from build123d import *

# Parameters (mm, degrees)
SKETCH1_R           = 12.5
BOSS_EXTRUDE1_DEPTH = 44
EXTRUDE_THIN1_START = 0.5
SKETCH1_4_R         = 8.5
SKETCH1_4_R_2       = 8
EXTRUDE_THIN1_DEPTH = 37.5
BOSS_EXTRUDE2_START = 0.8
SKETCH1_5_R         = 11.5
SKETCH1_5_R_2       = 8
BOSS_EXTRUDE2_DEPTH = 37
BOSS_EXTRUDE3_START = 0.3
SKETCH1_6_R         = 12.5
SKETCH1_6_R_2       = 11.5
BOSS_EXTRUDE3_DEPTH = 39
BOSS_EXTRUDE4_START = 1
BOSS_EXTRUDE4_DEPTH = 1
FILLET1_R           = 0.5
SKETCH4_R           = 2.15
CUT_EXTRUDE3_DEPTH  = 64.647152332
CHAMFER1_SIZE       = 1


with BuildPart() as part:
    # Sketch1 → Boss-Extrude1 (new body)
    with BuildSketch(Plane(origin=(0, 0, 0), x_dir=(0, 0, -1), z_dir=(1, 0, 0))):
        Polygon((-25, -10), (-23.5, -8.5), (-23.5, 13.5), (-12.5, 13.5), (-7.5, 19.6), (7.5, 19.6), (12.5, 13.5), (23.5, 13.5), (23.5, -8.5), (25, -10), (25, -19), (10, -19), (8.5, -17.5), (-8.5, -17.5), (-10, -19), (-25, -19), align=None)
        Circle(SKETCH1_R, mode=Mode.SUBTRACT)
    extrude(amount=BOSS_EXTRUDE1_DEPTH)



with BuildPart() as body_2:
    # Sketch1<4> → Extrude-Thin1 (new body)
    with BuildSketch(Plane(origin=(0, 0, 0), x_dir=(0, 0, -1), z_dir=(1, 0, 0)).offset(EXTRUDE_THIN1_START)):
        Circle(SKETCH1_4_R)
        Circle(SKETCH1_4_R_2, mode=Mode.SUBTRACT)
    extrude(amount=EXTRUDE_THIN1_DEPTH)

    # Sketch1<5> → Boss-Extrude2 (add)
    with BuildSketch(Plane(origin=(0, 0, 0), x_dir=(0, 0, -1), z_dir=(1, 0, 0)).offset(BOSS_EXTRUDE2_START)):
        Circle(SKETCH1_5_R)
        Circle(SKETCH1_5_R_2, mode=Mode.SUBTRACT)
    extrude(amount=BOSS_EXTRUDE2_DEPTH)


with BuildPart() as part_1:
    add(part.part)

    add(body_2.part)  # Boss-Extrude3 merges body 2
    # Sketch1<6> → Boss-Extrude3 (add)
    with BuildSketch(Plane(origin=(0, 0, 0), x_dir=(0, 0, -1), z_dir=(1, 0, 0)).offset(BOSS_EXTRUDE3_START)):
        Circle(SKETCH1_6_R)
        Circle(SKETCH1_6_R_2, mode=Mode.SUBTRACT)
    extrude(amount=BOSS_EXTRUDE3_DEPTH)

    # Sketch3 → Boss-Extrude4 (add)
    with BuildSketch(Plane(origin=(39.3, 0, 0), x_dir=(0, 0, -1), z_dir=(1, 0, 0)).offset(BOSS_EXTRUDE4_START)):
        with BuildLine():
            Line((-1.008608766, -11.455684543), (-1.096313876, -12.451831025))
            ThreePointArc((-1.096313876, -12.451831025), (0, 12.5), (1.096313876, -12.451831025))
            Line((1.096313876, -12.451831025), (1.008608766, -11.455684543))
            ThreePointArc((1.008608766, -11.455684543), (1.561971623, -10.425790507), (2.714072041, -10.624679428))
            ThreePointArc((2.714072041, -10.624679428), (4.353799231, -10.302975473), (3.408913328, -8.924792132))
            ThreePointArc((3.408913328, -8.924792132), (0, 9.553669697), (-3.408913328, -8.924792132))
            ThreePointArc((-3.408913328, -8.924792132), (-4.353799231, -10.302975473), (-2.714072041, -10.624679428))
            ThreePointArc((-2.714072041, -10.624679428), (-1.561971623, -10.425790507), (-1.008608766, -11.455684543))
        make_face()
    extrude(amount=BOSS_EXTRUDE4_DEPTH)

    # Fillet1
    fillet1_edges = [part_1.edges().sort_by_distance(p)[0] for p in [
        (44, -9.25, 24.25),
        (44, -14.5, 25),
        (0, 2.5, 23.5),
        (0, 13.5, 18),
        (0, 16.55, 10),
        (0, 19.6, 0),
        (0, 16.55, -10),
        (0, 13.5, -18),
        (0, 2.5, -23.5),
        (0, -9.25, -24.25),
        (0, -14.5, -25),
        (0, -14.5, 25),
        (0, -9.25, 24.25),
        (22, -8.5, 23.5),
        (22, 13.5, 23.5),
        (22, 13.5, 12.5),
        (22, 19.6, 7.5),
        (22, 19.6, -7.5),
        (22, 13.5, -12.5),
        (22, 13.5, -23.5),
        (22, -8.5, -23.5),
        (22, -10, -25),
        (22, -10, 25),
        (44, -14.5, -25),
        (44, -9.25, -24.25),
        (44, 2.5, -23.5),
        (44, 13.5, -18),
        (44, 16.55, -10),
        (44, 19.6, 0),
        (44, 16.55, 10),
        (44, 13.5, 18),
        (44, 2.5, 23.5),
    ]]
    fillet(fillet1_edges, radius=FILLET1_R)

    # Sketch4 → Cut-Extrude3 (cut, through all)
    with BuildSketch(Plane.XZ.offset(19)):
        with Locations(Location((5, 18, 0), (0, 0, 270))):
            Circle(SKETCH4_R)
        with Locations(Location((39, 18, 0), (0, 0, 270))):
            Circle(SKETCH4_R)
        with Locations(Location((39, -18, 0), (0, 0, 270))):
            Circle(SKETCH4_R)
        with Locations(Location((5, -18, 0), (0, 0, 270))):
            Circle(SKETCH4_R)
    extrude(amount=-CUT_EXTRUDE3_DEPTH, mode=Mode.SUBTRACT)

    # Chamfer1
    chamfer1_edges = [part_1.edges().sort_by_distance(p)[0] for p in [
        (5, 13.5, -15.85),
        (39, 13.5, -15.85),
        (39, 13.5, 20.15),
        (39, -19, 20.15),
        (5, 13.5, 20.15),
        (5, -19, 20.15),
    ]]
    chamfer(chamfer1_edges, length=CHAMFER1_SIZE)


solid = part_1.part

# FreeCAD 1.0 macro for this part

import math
import FreeCAD as App
import Part
import Sketcher
from FreeCAD import Vector


def edges_at(feature, points):
    """Names of the edges that pass closest to the given points."""
    edges = feature.Shape.Edges
    near = lambda p: min(range(len(edges)), key=lambda i: edges[i].distToShape(Part.Vertex(*p))[0])
    return sorted({f"Edge{near(p) + 1}" for p in points})

doc = App.newDocument("Part")
body = doc.addObject("PartDesign::Body", "Body")

# Sketch on YZ plane
sketch1 = body.newObject("Sketcher::SketchObject", "Sketch")
sketch1.AttachmentSupport = (doc.getObject("YZ_Plane"), [""])
sketch1.MapMode = "FlatFace"
sketch1.addGeometry([
    Part.LineSegment(Vector(-8.5, 23.5, 0), Vector(-10, 25, 0)),  # 0
    Part.LineSegment(Vector(-10, 25, 0), Vector(-19, 25, 0)),  # 1
    Part.LineSegment(Vector(-19, 25, 0), Vector(-19, 10, 0)),  # 2
    Part.LineSegment(Vector(-19, 10, 0), Vector(-17.5, 8.5, 0)),  # 3
    Part.LineSegment(Vector(-17.5, 8.5, 0), Vector(-17.5, -8.5, 0)),  # 4
    Part.LineSegment(Vector(-17.5, -8.5, 0), Vector(-19, -10, 0)),  # 5
    Part.LineSegment(Vector(-19, -10, 0), Vector(-19, -25, 0)),  # 6
    Part.LineSegment(Vector(-19, -25, 0), Vector(-10, -25, 0)),  # 7
    Part.LineSegment(Vector(-10, -25, 0), Vector(-8.5, -23.5, 0)),  # 8
    Part.LineSegment(Vector(-8.5, -23.5, 0), Vector(13.5, -23.5, 0)),  # 9
    Part.LineSegment(Vector(13.5, -23.5, 0), Vector(13.5, -12.5, 0)),  # 10
    Part.LineSegment(Vector(13.5, -12.5, 0), Vector(19.6, -7.5, 0)),  # 11
    Part.LineSegment(Vector(19.6, -7.5, 0), Vector(19.6, 7.5, 0)),  # 12
    Part.LineSegment(Vector(19.6, 7.5, 0), Vector(13.5, 12.5, 0)),  # 13
    Part.LineSegment(Vector(13.5, 12.5, 0), Vector(13.5, 23.5, 0)),  # 14
    Part.LineSegment(Vector(13.5, 23.5, 0), Vector(-8.5, 23.5, 0)),  # 15
    Part.Circle(Vector(0, 0, 0), Vector(0, 0, 1), 12.5),  # 16
], False)
sketch1.addConstraint([
    Sketcher.Constraint("Coincident", 0, 2, 1, 1),
    Sketcher.Constraint("Coincident", 1, 2, 2, 1),
    Sketcher.Constraint("Coincident", 2, 2, 3, 1),
    Sketcher.Constraint("Coincident", 3, 2, 4, 1),
    Sketcher.Constraint("Coincident", 4, 2, 5, 1),
    Sketcher.Constraint("Coincident", 5, 2, 6, 1),
    Sketcher.Constraint("Coincident", 6, 2, 7, 1),
    Sketcher.Constraint("Coincident", 7, 2, 8, 1),
    Sketcher.Constraint("Coincident", 8, 2, 9, 1),
    Sketcher.Constraint("Coincident", 9, 2, 10, 1),
    Sketcher.Constraint("Coincident", 10, 2, 11, 1),
    Sketcher.Constraint("Coincident", 11, 2, 12, 1),
    Sketcher.Constraint("Coincident", 12, 2, 13, 1),
    Sketcher.Constraint("Coincident", 13, 2, 14, 1),
    Sketcher.Constraint("Coincident", 14, 2, 15, 1),
    Sketcher.Constraint("Coincident", 15, 2, 0, 1),
    Sketcher.Constraint("Horizontal", 1),
    Sketcher.Constraint("Vertical", 2),
    Sketcher.Constraint("Vertical", 4),
    Sketcher.Constraint("Vertical", 6),
    Sketcher.Constraint("Horizontal", 7),
    Sketcher.Constraint("Horizontal", 9),
    Sketcher.Constraint("Vertical", 10),
    Sketcher.Constraint("Vertical", 12),
    Sketcher.Constraint("Vertical", 14),
    Sketcher.Constraint("Horizontal", 15),
    Sketcher.Constraint("Coincident", 16, 3, -1, 1),
    Sketcher.Constraint("Symmetric", 2, 2, 5, 2, -1),
    Sketcher.Constraint("Symmetric", 0, 2, 7, 2, -1),
    Sketcher.Constraint("Symmetric", 10, 2, 13, 2, -1),
    Sketcher.Constraint("Symmetric", 8, 2, 15, 2, -1),
    Sketcher.Constraint("Parallel", 0, 3),
    Sketcher.Constraint("Perpendicular", 3, 5),
    Sketcher.Constraint("Parallel", 5, 8),
    Sketcher.Constraint("Equal", 6, 12),
    Sketcher.Constraint("Equal", 0, 3),
    Sketcher.Constraint("Equal", 11, 13),
    Sketcher.Constraint("Diameter", 16, 25.0),
    Sketcher.Constraint("DistanceX", 1, 2, 1, 1, 9.0),
    Sketcher.Constraint("DistanceX", 9, 1, 9, 2, 22.0),
    Sketcher.Constraint("DistanceY", 2, 2, 2, 1, 15.0),
    Sketcher.Constraint("DistanceY", 4, 2, 4, 1, 17.0),
    Sketcher.Constraint("DistanceY", 10, 1, 10, 2, 11.0),
    Sketcher.Constraint("DistanceX", 0, 2, -1, 1, 10.0),
    Sketcher.Constraint("DistanceY", -1, 1, 0, 2, 25.0),
    Sketcher.Constraint("DistanceX", -1, 1, 11, 2, 19.6),
])
pad1 = body.newObject("PartDesign::Pad", "Pad")
pad1.Profile = sketch1
pad1.Length = 44
body2 = doc.addObject("PartDesign::Body", "Body001")

# Sketch on YZ plane
sketch2 = body2.newObject("Sketcher::SketchObject", "Sketch001")
sketch2.AttachmentSupport = (doc.getObject("YZ_Plane001"), [""])
sketch2.MapMode = "FlatFace"
sketch2.AttachmentOffset = App.Placement(Vector(0, 0, 0.5), App.Rotation())
sketch2.addGeometry([
    Part.Circle(Vector(0, 0, 0), Vector(0, 0, 1), 8),
    Part.Circle(Vector(0, 0, 0), Vector(0, 0, 1), 8),
], False)
sketch2.addConstraint([
    Sketcher.Constraint("Coincident", 0, 3, -1, 1),
    Sketcher.Constraint("Coincident", 1, 3, -1, 1),
    Sketcher.Constraint("Diameter", 0, 17.0),
    Sketcher.Constraint("Diameter", 1, 16.0),
])
pad2 = body2.newObject("PartDesign::Pad", "Pad001")
pad2.Profile = sketch2
pad2.Length = 37.5

# Sketch on YZ plane
sketch3 = body2.newObject("Sketcher::SketchObject", "Sketch002")
sketch3.AttachmentSupport = (doc.getObject("YZ_Plane001"), [""])
sketch3.MapMode = "FlatFace"
sketch3.AttachmentOffset = App.Placement(Vector(0, 0, 0.8), App.Rotation())
sketch3.addGeometry([
    Part.Circle(Vector(0, 0, 0), Vector(0, 0, 1), 12),
    Part.Circle(Vector(0, 0, 0), Vector(0, 0, 1), 8),
], False)
sketch3.addConstraint([
    Sketcher.Constraint("Coincident", 0, 3, -1, 1),
    Sketcher.Constraint("Coincident", 1, 3, -1, 1),
    Sketcher.Constraint("Diameter", 0, 23.0),
    Sketcher.Constraint("Diameter", 1, 16.0),
])
pad3 = body2.newObject("PartDesign::Pad", "Pad002")
pad3.Profile = sketch3
pad3.Length = 37
body.AllowCompound = True
doc.recompute()

boolean = body.newObject("PartDesign::Boolean", "Boolean")
boolean.Type = "Fuse"
boolean.addObjects([body2])

# Sketch on YZ plane
sketch4 = body.newObject("Sketcher::SketchObject", "Sketch003")
sketch4.AttachmentSupport = (doc.getObject("YZ_Plane"), [""])
sketch4.MapMode = "FlatFace"
sketch4.AttachmentOffset = App.Placement(Vector(0, 0, 0.3), App.Rotation())
sketch4.addGeometry([
    Part.Circle(Vector(0, 0, 0), Vector(0, 0, 1), 12),
    Part.Circle(Vector(0, 0, 0), Vector(0, 0, 1), 12),
], False)
sketch4.addConstraint([
    Sketcher.Constraint("Coincident", 0, 3, -1, 1),
    Sketcher.Constraint("Coincident", 1, 3, -1, 1),
    Sketcher.Constraint("Diameter", 0, 25.0),
    Sketcher.Constraint("Diameter", 1, 23.0),
])
pad4 = body.newObject("PartDesign::Pad", "Pad003")
pad4.Profile = sketch4
pad4.Length = 39

# Sketch on YZ plane
sketch5 = body.newObject("Sketcher::SketchObject", "Sketch004")
sketch5.AttachmentSupport = (doc.getObject("YZ_Plane"), [""])
sketch5.MapMode = "FlatFace"
sketch5.AttachmentOffset = App.Placement(Vector(0, 0, 40.3), App.Rotation())
sketch5.addGeometry([
    Part.LineSegment(Vector(-12.5, 1.1, 0), Vector(-11.5, 1, 0)),  # 0
    Part.ArcOfCircle(Part.Circle(Vector(-11.3, 2, 0), Vector(0, 0, 1), 1), math.radians(-98), math.radians(46)),  # 1
    Part.ArcOfCircle(Part.Circle(Vector(-9.9, 3.4, 0), Vector(0, 0, 1), 1), math.radians(-1), math.radians(226)),  # 2
    Part.ArcOfCircle(Part.Circle(Vector(0, 0, 0), Vector(0, 0, 1), 9.6), math.radians(-159), math.radians(159)),  # 3
    Part.ArcOfCircle(Part.Circle(Vector(-9.9, -3.4, 0), Vector(0, 0, 1), 1), math.radians(134), math.radians(361)),  # 4
    Part.ArcOfCircle(Part.Circle(Vector(-11.3, -2, 0), Vector(0, 0, 1), 1), math.radians(-46), math.radians(98)),  # 5
    Part.LineSegment(Vector(-11.5, -1, 0), Vector(-12.5, -1.1, 0)),  # 6
    Part.ArcOfCircle(Part.Circle(Vector(0, 0, 0), Vector(0, 0, 1), 12.5), math.radians(-175), math.radians(175)),  # 7
], False)
sketch5.addConstraint([
    Sketcher.Constraint("Coincident", 0, 2, 1, 1),
    Sketcher.Constraint("Tangent", 1, 2, 2, 2),
    Sketcher.Constraint("Coincident", 2, 1, 3, 2),
    Sketcher.Constraint("Coincident", 3, 1, 4, 2),
    Sketcher.Constraint("Tangent", 4, 1, 5, 1),
    Sketcher.Constraint("Coincident", 5, 2, 6, 1),
    Sketcher.Constraint("Coincident", 6, 2, 7, 1),
    Sketcher.Constraint("Coincident", 7, 2, 0, 1),
    Sketcher.Constraint("Coincident", 3, 3, -1, 1),
    Sketcher.Constraint("Coincident", 7, 3, -1, 1),
    Sketcher.Constraint("Equal", 1, 2),
    Sketcher.Constraint("Equal", 2, 4),
    Sketcher.Constraint("Equal", 4, 5),
    Sketcher.Constraint("Symmetric", 2, 3, 4, 3, -1),
    Sketcher.Constraint("Symmetric", 0, 2, 5, 2, -1),
    Sketcher.Constraint("Vertical", 6, 2, 7, 2),
    Sketcher.Constraint("Radius", 1, 1.0),
    Sketcher.Constraint("Radius", 7, 12.5),
    Sketcher.Constraint("Distance", 0, 1.0),
    Sketcher.Constraint("DistanceY", -1, 1, 1, 3, 2.0),
    Sketcher.Constraint("Radius", 3, 9.55367),
    Sketcher.Constraint("DistanceX", 1, 3, -1, 1, 11.324752),
    Sketcher.Constraint("DistanceX", 1, 2, -1, 1, 10.624679),
    Sketcher.Constraint("DistanceX", 6, 2, -1, 1, 12.451831),
])
pad5 = body.newObject("PartDesign::Pad", "Pad004")
pad5.Profile = sketch5
pad5.Length = 1
doc.recompute()

fillet = body.newObject("PartDesign::Fillet", "Fillet")
fillet.Base = (pad5, edges_at(pad5, [
    (44, -9.25, 24.25),
    (44, -14.5, 25),
    (0, 2.5, 23.5),
    (0, 13.5, 18),
    (0, 16.55, 10),
    (0, 19.6, 0),
    (0, 16.55, -10),
    (0, 13.5, -18),
    (0, 2.5, -23.5),
    (0, -9.25, -24.25),
    (0, -14.5, -25),
    (0, -14.5, 25),
    (0, -9.25, 24.25),
    (22, -8.5, 23.5),
    (22, 13.5, 23.5),
    (22, 13.5, 12.5),
    (22, 19.6, 7.5),
    (22, 19.6, -7.5),
    (22, 13.5, -12.5),
    (22, 13.5, -23.5),
    (22, -8.5, -23.5),
    (22, -10, -25),
    (22, -10, 25),
    (44, -14.5, -25),
    (44, -9.25, -24.25),
    (44, 2.5, -23.5),
    (44, 13.5, -18),
    (44, 16.55, -10),
    (44, 19.6, 0),
    (44, 16.55, 10),
    (44, 13.5, 18),
    (44, 2.5, 23.5),
]))
fillet.Radius = 0.5

# Sketch on XZ plane
sketch6 = body.newObject("Sketcher::SketchObject", "Sketch005")
sketch6.AttachmentSupport = (doc.getObject("XZ_Plane"), [""])
sketch6.MapMode = "FlatFace"
sketch6.AttachmentOffset = App.Placement(Vector(0, 0, 19), App.Rotation())
sketch6.addGeometry([
    Part.Circle(Vector(5, 18, 0), Vector(0, 0, 1), 2.1),
    Part.Circle(Vector(39, 18, 0), Vector(0, 0, 1), 2.1),
    Part.Circle(Vector(39, -18, 0), Vector(0, 0, 1), 2.1),
    Part.Circle(Vector(5, -18, 0), Vector(0, 0, 1), 2.1),
], False)
sketch6.addConstraint([
    Sketcher.Constraint("Equal", 0, 1),
    Sketcher.Constraint("Equal", 1, 2),
    Sketcher.Constraint("Equal", 2, 3),
    Sketcher.Constraint("Symmetric", 1, 3, 2, 3, -1),
    Sketcher.Constraint("Symmetric", 0, 3, 3, 3, -1),
    Sketcher.Constraint("Horizontal", 0, 3, 1, 3),
    Sketcher.Constraint("Diameter", 0, 4.3),
    Sketcher.Constraint("DistanceX", -1, 1, 0, 3, 5.0),
    Sketcher.Constraint("DistanceY", -1, 1, 0, 3, 18.0),
    Sketcher.Constraint("DistanceX", -1, 1, 1, 3, 39.0),
])
pocket1 = body.newObject("PartDesign::Pocket", "Pocket")
pocket1.Profile = sketch6
pocket1.Type = "ThroughAll"
doc.recompute()

chamfer = body.newObject("PartDesign::Chamfer", "Chamfer")
chamfer.Base = (pocket1, edges_at(pocket1, [
    (5, 13.5, -15.85),
    (39, 13.5, -15.85),
    (39, 13.5, 20.15),
    (39, -19, 20.15),
    (5, 13.5, 20.15),
    (5, -19, 20.15),
]))
chamfer.Size = 1

doc.recompute()
